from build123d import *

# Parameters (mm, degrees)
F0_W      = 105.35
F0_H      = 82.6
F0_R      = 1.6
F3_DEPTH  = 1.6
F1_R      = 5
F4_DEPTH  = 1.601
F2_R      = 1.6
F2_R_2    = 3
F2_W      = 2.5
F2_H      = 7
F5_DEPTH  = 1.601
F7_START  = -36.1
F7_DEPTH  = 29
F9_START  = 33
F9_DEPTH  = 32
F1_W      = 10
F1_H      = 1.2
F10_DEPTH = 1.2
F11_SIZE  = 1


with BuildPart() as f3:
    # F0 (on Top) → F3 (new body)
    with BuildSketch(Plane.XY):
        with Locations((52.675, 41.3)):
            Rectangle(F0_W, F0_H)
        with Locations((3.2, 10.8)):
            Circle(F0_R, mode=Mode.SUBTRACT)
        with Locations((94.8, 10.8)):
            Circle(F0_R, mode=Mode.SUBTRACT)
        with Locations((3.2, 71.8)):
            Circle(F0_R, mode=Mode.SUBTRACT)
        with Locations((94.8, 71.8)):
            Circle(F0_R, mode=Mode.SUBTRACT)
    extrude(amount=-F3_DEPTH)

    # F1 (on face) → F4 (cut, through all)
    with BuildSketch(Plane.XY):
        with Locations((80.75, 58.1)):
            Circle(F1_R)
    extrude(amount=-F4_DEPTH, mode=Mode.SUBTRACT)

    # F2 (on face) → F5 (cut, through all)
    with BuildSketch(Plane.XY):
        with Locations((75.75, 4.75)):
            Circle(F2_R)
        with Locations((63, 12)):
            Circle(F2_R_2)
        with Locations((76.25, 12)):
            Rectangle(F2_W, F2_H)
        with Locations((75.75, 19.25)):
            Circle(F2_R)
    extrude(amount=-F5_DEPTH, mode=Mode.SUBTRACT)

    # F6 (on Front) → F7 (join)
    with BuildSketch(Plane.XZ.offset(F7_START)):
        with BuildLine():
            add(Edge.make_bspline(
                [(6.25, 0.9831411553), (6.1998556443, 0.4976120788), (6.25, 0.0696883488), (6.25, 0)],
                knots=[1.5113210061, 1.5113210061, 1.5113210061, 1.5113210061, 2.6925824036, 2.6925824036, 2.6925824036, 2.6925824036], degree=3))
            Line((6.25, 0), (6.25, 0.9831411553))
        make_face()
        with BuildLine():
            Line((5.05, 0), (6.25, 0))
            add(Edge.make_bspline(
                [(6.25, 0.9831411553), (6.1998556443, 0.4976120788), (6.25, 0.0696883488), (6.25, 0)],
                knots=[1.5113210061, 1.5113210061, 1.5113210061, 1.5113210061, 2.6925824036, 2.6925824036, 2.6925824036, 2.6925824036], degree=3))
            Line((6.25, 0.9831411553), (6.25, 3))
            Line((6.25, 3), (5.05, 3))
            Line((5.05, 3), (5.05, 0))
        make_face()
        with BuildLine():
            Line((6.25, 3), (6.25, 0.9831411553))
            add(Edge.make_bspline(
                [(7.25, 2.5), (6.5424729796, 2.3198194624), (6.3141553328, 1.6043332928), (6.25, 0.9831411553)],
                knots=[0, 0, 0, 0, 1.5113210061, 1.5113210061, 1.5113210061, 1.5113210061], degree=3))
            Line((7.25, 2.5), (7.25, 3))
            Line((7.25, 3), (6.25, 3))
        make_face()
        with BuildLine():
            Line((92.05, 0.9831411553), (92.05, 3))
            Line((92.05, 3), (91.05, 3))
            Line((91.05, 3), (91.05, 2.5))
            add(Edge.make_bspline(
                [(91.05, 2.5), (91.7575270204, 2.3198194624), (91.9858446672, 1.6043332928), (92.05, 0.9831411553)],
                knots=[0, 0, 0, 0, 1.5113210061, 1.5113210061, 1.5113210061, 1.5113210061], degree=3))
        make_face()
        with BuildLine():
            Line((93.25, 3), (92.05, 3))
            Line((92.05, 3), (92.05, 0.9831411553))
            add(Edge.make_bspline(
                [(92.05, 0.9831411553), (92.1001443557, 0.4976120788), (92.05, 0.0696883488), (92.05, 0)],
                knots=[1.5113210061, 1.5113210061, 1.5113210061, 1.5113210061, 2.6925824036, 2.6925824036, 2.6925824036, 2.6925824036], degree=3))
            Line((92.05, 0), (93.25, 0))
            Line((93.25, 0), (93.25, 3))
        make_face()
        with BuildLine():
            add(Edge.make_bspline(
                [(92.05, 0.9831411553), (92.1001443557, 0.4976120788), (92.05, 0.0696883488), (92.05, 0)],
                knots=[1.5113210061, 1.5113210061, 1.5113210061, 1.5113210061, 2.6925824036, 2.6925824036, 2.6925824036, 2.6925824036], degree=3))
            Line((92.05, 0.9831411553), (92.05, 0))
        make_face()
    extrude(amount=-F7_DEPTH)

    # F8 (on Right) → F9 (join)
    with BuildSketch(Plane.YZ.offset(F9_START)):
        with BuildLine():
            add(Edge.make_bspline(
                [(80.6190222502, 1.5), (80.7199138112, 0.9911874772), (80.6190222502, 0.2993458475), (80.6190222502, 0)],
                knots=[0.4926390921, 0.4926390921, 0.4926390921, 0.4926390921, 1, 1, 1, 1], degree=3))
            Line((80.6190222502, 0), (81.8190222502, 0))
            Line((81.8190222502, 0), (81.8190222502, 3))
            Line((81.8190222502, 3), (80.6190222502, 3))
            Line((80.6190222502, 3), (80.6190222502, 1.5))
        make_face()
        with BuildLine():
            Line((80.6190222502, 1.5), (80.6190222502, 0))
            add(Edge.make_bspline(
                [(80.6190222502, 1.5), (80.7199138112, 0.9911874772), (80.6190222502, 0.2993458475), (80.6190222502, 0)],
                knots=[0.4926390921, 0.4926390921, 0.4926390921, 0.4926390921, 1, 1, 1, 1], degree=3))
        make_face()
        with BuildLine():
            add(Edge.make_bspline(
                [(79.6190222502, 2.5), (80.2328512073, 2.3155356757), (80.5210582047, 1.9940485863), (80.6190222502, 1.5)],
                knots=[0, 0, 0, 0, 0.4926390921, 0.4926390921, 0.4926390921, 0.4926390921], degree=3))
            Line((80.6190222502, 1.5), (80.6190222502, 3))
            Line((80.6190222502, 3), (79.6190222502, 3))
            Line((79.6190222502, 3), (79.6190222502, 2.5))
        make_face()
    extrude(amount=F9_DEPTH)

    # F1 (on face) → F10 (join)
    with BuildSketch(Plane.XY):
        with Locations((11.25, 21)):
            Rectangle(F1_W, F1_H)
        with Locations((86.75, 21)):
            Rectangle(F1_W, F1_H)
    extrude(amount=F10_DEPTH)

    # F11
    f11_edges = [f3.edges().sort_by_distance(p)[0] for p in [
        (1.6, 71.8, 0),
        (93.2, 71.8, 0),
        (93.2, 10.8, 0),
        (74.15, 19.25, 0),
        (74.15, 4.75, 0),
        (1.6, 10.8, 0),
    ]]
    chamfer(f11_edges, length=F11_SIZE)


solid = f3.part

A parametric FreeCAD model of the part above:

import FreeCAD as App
import Part
import Sketcher
from FreeCAD import Vector


def edges_at(feature, points):
    """Names of the edges that pass closest to the given points."""
    edges = feature.Shape.Edges
    near = lambda p: min(range(len(edges)), key=lambda i: edges[i].distToShape(Part.Vertex(*p))[0])
    return sorted({f"Edge{near(p) + 1}" for p in points})


def add_polygon(sketch, points):
    """Adds a closed chain of lines whose ends are joined by coincident constraints."""
    first, n = sketch.GeometryCount, len(points)
    for a, b in zip(points, points[1:] + points[:1]):
        sketch.addGeometry(Part.LineSegment(App.Vector(*a, 0), App.Vector(*b, 0)), False)
    for i in range(n):
        sketch.addConstraint(Sketcher.Constraint("Coincident", first + i, 2, first + (i + 1) % n, 1))

doc = App.newDocument("Part")
params = doc.addObject("Spreadsheet::Sheet", "Params")
for row, (alias, value) in enumerate([
    ("sketch1_diameter", "3.2 mm"),
    ("sketch1_height", "82.6 mm"),
    ("sketch1_width", "105.35 mm"),
    ("pad1_length", "1.6 mm"),
    ("sketch2_diameter", "10 mm"),
    ("sketch3_diameter", "6 mm"),
    ("sketch3_diameter2", "3.2 mm"),
    ("sketch3_height", "7 mm"),
    ("sketch3_width", "2.5 mm"),
    ("sketch4_height", "3 mm"),
    ("sketch4_width", "2.2 mm"),
    ("pad2_length", "29 mm"),
    ("sketch5_height", "3 mm"),
    ("sketch5_width", "1.2 mm"),
    ("pad3_length", "32 mm"),
    ("sketch6_width", "10 mm"),
    ("sketch6_height", "1.2 mm"),
    ("pad4_length", "1.2 mm"),
    ("chamfer_size", "1 mm"),
], start=1):
    params.set(f"A{row}", alias)
    params.set(f"B{row}", "=" + value)
    params.setAlias(f"B{row}", alias)

body = doc.addObject("PartDesign::Body", "Body")

sketch1 = body.newObject("Sketcher::SketchObject", "Sketch")
sketch1.AttachmentSupport = (doc.getObject("XY_Plane"), [""])
sketch1.MapMode = "FlatFace"
add_polygon(sketch1, [(0, 82.6), (0, 0), (105.3, 0), (105.3, 82.6)])
sketch1.addGeometry(Part.Circle(Vector(3.2, 10.8, 0), Vector(0, 0, 1), 1.6), False)
sketch1.addGeometry(Part.Circle(Vector(94.8, 10.8, 0), Vector(0, 0, 1), 1.6), False)
sketch1.addGeometry(Part.Circle(Vector(3.2, 71.8, 0), Vector(0, 0, 1), 1.6), False)
sketch1.addGeometry(Part.Circle(Vector(94.8, 71.8, 0), Vector(0, 0, 1), 1.6), False)
sketch1.addConstraint(Sketcher.Constraint("Vertical", 0))
sketch1.addConstraint(Sketcher.Constraint("Horizontal", 1))
sketch1.addConstraint(Sketcher.Constraint("Vertical", 2))
sketch1.addConstraint(Sketcher.Constraint("Horizontal", 3))
sketch1.addConstraint(Sketcher.Constraint("Coincident", 0, 2, -1, 1))
sketch1.addConstraint(Sketcher.Constraint("Equal", 4, 5))
sketch1.addConstraint(Sketcher.Constraint("Equal", 5, 6))
sketch1.addConstraint(Sketcher.Constraint("Equal", 6, 7))
sketch1.addConstraint(Sketcher.Constraint("Horizontal", 4, 3, 5, 3))
sketch1.addConstraint(Sketcher.Constraint("Horizontal", 6, 3, 7, 3))
sketch1.addConstraint(Sketcher.Constraint("Vertical", 4, 3, 6, 3))
sketch1.addConstraint(Sketcher.Constraint("Vertical", 5, 3, 7, 3))
sketch1.addConstraint(Sketcher.Constraint("Diameter", 4, 3.2))
sketch1.addConstraint(Sketcher.Constraint("DistanceY", 0, 2, 0, 1, 82.6))
sketch1.addConstraint(Sketcher.Constraint("DistanceY", 4, 3, 6, 3, 61.0))
sketch1.addConstraint(Sketcher.Constraint("DistanceX", 1, 1, 1, 2, 105.35))
sketch1.addConstraint(Sketcher.Constraint("DistanceX", -1, 1, 4, 3, 3.2))
sketch1.addConstraint(Sketcher.Constraint("DistanceY", -1, 1, 4, 3, 10.8))
sketch1.addConstraint(Sketcher.Constraint("DistanceX", -1, 1, 5, 3, 94.8))
sketch1.setExpression("Constraints[16]", "Params.sketch1_diameter")
sketch1.setExpression("Constraints[17]", "Params.sketch1_height")
sketch1.setExpression("Constraints[19]", "Params.sketch1_width")
pad1 = body.newObject("PartDesign::Pad", "Pad")
pad1.Profile = sketch1
pad1.setExpression("Length", "Params.pad1_length")
pad1.Reversed = True

sketch2 = body.newObject("Sketcher::SketchObject", "Sketch001")
sketch2.AttachmentSupport = (doc.getObject("XY_Plane"), [""])
sketch2.MapMode = "FlatFace"
sketch2.addGeometry(Part.Circle(Vector(81, 58, 0), Vector(0, 0, 1), 5), False)
sketch2.addConstraint(Sketcher.Constraint("Diameter", 0, 10.0))
sketch2.addConstraint(Sketcher.Constraint("DistanceY", -1, 1, 0, 3, 58.1))
sketch2.addConstraint(Sketcher.Constraint("DistanceX", -1, 1, 0, 3, 80.75))
sketch2.setExpression("Constraints[0]", "Params.sketch2_diameter")
pocket1 = body.newObject("PartDesign::Pocket", "Pocket")
pocket1.Profile = sketch2
pocket1.Type = "ThroughAll"

sketch3 = body.newObject("Sketcher::SketchObject", "Sketch002")
sketch3.AttachmentSupport = (doc.getObject("XY_Plane"), [""])
sketch3.MapMode = "FlatFace"
sketch3.addGeometry(Part.Circle(Vector(75.8, 4.8, 0), Vector(0, 0, 1), 1.6), False)
sketch3.addGeometry(Part.Circle(Vector(63, 12, 0), Vector(0, 0, 1), 3), False)
add_polygon(sketch3, [(75, 15.5), (75, 8.5), (77.5, 8.5), (77.5, 15.5)])
sketch3.addGeometry(Part.Circle(Vector(75.8, 19.2, 0), Vector(0, 0, 1), 1.6), False)
sketch3.addConstraint(Sketcher.Constraint("Vertical", 2))
sketch3.addConstraint(Sketcher.Constraint("Horizontal", 3))
sketch3.addConstraint(Sketcher.Constraint("Vertical", 4))
sketch3.addConstraint(Sketcher.Constraint("Horizontal", 5))
sketch3.addConstraint(Sketcher.Constraint("Equal", 0, 6))
sketch3.addConstraint(Sketcher.Constraint("Vertical", 0, 3, 6, 3))
sketch3.addConstraint(Sketcher.Constraint("Diameter", 1, 6.0))
sketch3.addConstraint(Sketcher.Constraint("Diameter", 0, 3.2))
sketch3.addConstraint(Sketcher.Constraint("DistanceY", 2, 2, 2, 1, 7.0))
sketch3.addConstraint(Sketcher.Constraint("DistanceX", 3, 1, 3, 2, 2.5))
sketch3.addConstraint(Sketcher.Constraint("DistanceX", -1, 1, 1, 3, 63.0))
sketch3.addConstraint(Sketcher.Constraint("DistanceY", -1, 1, 1, 3, 12.0))
sketch3.addConstraint(Sketcher.Constraint("DistanceX", -1, 1, 2, 2, 75.0))
sketch3.addConstraint(Sketcher.Constraint("DistanceY", -1, 1, 2, 2, 8.5))
sketch3.addConstraint(Sketcher.Constraint("DistanceY", 0, 3, 6, 3, 14.5))
sketch3.addConstraint(Sketcher.Constraint("DistanceX", -1, 1, 0, 3, 75.75))
sketch3.addConstraint(Sketcher.Constraint("DistanceY", -1, 1, 0, 3, 4.75))
sketch3.setExpression("Constraints[10]", "Params.sketch3_diameter")
sketch3.setExpression("Constraints[11]", "Params.sketch3_diameter2")
sketch3.setExpression("Constraints[12]", "Params.sketch3_height")
sketch3.setExpression("Constraints[13]", "Params.sketch3_width")
pocket2 = body.newObject("PartDesign::Pocket", "Pocket001")
pocket2.Profile = sketch3
pocket2.Type = "ThroughAll"

sketch4 = body.newObject("Sketcher::SketchObject", "Sketch003")
sketch4.AttachmentSupport = (doc.getObject("XZ_Plane"), [""])
sketch4.MapMode = "FlatFace"
sketch4.AttachmentOffset = App.Placement(Vector(0, 0, -36.1), App.Rotation())
sketch4.addGeometry(Part.LineSegment(Vector(6.25, 0, 0), Vector(6.25, 0.983141, 0)), False)
sketch4.addGeometry(Part.BSplineCurve([Vector(7.25, 2.5, 0), Vector(6.542473, 2.319819, 0), Vector(6.314155, 1.604333, 0), Vector(6.25, 0.983141, 0)], [4, 4], [0, 1.511321006], False, 3, [1, 1, 1, 1], False), False)
sketch4.addGeometry(Part.LineSegment(Vector(7.25, 2.5, 0), Vector(7.25, 3, 0)), False)
sketch4.addGeometry(Part.LineSegment(Vector(7.25, 3, 0), Vector(5.05, 3, 0)), False)
sketch4.addGeometry(Part.LineSegment(Vector(5.05, 3, 0), Vector(5.05, 0, 0)), False)
sketch4.addGeometry(Part.LineSegment(Vector(5.05, 0, 0), Vector(6.25, 0, 0)), False)
sketch4.addGeometry(Part.LineSegment(Vector(91.05, 3, 0), Vector(91.05, 2.5, 0)), False)
sketch4.addGeometry(Part.BSplineCurve([Vector(91.05, 2.5, 0), Vector(91.757527, 2.319819, 0), Vector(91.985845, 1.604333, 0), Vector(92.05, 0.983141, 0)], [4, 4], [0, 1.511321006], False, 3, [1, 1, 1, 1], False), False)
sketch4.addGeometry(Part.LineSegment(Vector(92.05, 0.983141, 0), Vector(92.05, 0, 0)), False)
sketch4.addGeometry(Part.LineSegment(Vector(92.05, 0, 0), Vector(93.25, 0, 0)), False)
sketch4.addGeometry(Part.LineSegment(Vector(93.25, 0, 0), Vector(93.25, 3, 0)), False)
sketch4.addGeometry(Part.LineSegment(Vector(93.25, 3, 0), Vector(91.05, 3, 0)), False)
sketch4.addConstraint(Sketcher.Constraint("Block", 1))
sketch4.addConstraint(Sketcher.Constraint("Block", 7))
sketch4.addConstraint(Sketcher.Constraint("Coincident", 0, 2, 1, 2))
sketch4.addConstraint(Sketcher.Constraint("Coincident", 1, 1, 2, 1))
sketch4.addConstraint(Sketcher.Constraint("Coincident", 2, 2, 3, 1))
sketch4.addConstraint(Sketcher.Constraint("Coincident", 3, 2, 4, 1))
sketch4.addConstraint(Sketcher.Constraint("Coincident", 4, 2, 5, 1))
sketch4.addConstraint(Sketcher.Constraint("Coincident", 5, 2, 0, 1))
sketch4.addConstraint(Sketcher.Constraint("Coincident", 6, 2, 7, 1))
sketch4.addConstraint(Sketcher.Constraint("Coincident", 7, 2, 8, 1))
sketch4.addConstraint(Sketcher.Constraint("Coincident", 8, 2, 9, 1))
sketch4.addConstraint(Sketcher.Constraint("Coincident", 9, 2, 10, 1))
sketch4.addConstraint(Sketcher.Constraint("Coincident", 10, 2, 11, 1))
sketch4.addConstraint(Sketcher.Constraint("Coincident", 11, 2, 6, 1))
sketch4.addConstraint(Sketcher.Constraint("Vertical", 0))
sketch4.addConstraint(Sketcher.Constraint("Vertical", 2))
sketch4.addConstraint(Sketcher.Constraint("Horizontal", 3))
sketch4.addConstraint(Sketcher.Constraint("Vertical", 4))
sketch4.addConstraint(Sketcher.Constraint("Horizontal", 5))
sketch4.addConstraint(Sketcher.Constraint("Vertical", 6))
sketch4.addConstraint(Sketcher.Constraint("Vertical", 8))
sketch4.addConstraint(Sketcher.Constraint("Horizontal", 9))
sketch4.addConstraint(Sketcher.Constraint("Vertical", 10))
sketch4.addConstraint(Sketcher.Constraint("Horizontal", 11))
sketch4.addConstraint(Sketcher.Constraint("PointOnObject", 4, 2, -1))
sketch4.addConstraint(Sketcher.Constraint("PointOnObject", 8, 2, -1))
sketch4.addConstraint(Sketcher.Constraint("Horizontal", 3, 2, 10, 2))
sketch4.addConstraint(Sketcher.Constraint("Equal", 5, 9))
sketch4.addConstraint(Sketcher.Constraint("DistanceY", 4, 2, 4, 1, 3.0))
sketch4.addConstraint(Sketcher.Constraint("DistanceX", 3, 2, 3, 1, 2.2))
sketch4.setExpression("Constraints[28]", "Params.sketch4_height")
sketch4.setExpression("Constraints[29]", "Params.sketch4_width")
pad2 = body.newObject("PartDesign::Pad", "Pad001")
pad2.Profile = sketch4
pad2.setExpression("Length", "Params.pad2_length")
pad2.Reversed = True

sketch5 = body.newObject("Sketcher::SketchObject", "Sketch004")
sketch5.AttachmentSupport = (doc.getObject("YZ_Plane"), [""])
sketch5.MapMode = "FlatFace"
sketch5.AttachmentOffset = App.Placement(Vector(0, 0, 33), App.Rotation())
sketch5.addGeometry(Part.LineSegment(Vector(80.619022, 0, 0), Vector(81.819022, 0, 0)), False)
sketch5.addGeometry(Part.LineSegment(Vector(81.819022, 0, 0), Vector(81.819022, 3, 0)), False)
sketch5.addGeometry(Part.LineSegment(Vector(81.819022, 3, 0), Vector(79.619022, 3, 0)), False)
sketch5.addGeometry(Part.LineSegment(Vector(79.619022, 3, 0), Vector(79.619022, 2.5, 0)), False)
sketch5.addGeometry(Part.BSplineCurve([Vector(79.619022, 2.5, 0), Vector(80.232851, 2.315536, 0), Vector(80.521058, 1.994049, 0), Vector(80.619022, 1.5, 0)], [4, 4], [0, 0.492639092], False, 3, [1, 1, 1, 1], False), False)
sketch5.addGeometry(Part.LineSegment(Vector(80.619022, 1.5, 0), Vector(80.619022, 0, 0)), False)
sketch5.addConstraint(Sketcher.Constraint("Block", 4))
sketch5.addConstraint(Sketcher.Constraint("Coincident", 0, 2, 1, 1))
sketch5.addConstraint(Sketcher.Constraint("Coincident", 1, 2, 2, 1))
sketch5.addConstraint(Sketcher.Constraint("Coincident", 2, 2, 3, 1))
sketch5.addConstraint(Sketcher.Constraint("Coincident", 3, 2, 4, 1))
sketch5.addConstraint(Sketcher.Constraint("Coincident", 4, 2, 5, 1))
sketch5.addConstraint(Sketcher.Constraint("Coincident", 5, 2, 0, 1))
sketch5.addConstraint(Sketcher.Constraint("Horizontal", 0))
sketch5.addConstraint(Sketcher.Constraint("Vertical", 1))
sketch5.addConstraint(Sketcher.Constraint("Horizontal", 2))
sketch5.addConstraint(Sketcher.Constraint("Vertical", 3))
sketch5.addConstraint(Sketcher.Constraint("Vertical", 5))
sketch5.addConstraint(Sketcher.Constraint("PointOnObject", 0, 2, -1))
sketch5.addConstraint(Sketcher.Constraint("DistanceY", 1, 1, 1, 2, 3.0))
sketch5.addConstraint(Sketcher.Constraint("DistanceX", 0, 1, 0, 2, 1.2))
sketch5.setExpression("Constraints[13]", "Params.sketch5_height")
sketch5.setExpression("Constraints[14]", "Params.sketch5_width")
pad3 = body.newObject("PartDesign::Pad", "Pad002")
pad3.Profile = sketch5
pad3.setExpression("Length", "Params.pad3_length")

sketch6 = body.newObject("Sketcher::SketchObject", "Sketch005")
sketch6.AttachmentSupport = (doc.getObject("XY_Plane"), [""])
sketch6.MapMode = "FlatFace"
add_polygon(sketch6, [(6.2, 21.6), (6.2, 20.4), (16.2, 20.4), (16.2, 21.6)])
add_polygon(sketch6, [(81.8, 21.6), (81.8, 20.4), (91.8, 20.4), (91.8, 21.6)])
sketch6.addConstraint(Sketcher.Constraint("Vertical", 0))
sketch6.addConstraint(Sketcher.Constraint("Horizontal", 1))
sketch6.addConstraint(Sketcher.Constraint("Vertical", 2))
sketch6.addConstraint(Sketcher.Constraint("Horizontal", 3))
sketch6.addConstraint(Sketcher.Constraint("Vertical", 4))
sketch6.addConstraint(Sketcher.Constraint("Horizontal", 5))
sketch6.addConstraint(Sketcher.Constraint("Vertical", 6))
sketch6.addConstraint(Sketcher.Constraint("Horizontal", 7))
sketch6.addConstraint(Sketcher.Constraint("Horizontal", 1, 2, 4, 2))
sketch6.addConstraint(Sketcher.Constraint("Horizontal", 3, 2, 6, 2))
sketch6.addConstraint(Sketcher.Constraint("Equal", 3, 5))
sketch6.addConstraint(Sketcher.Constraint("DistanceX", 1, 1, 1, 2, 10.0))
sketch6.addConstraint(Sketcher.Constraint("DistanceY", 0, 2, 0, 1, 1.2))
sketch6.addConstraint(Sketcher.Constraint("DistanceY", -1, 1, 0, 2, 20.4))
sketch6.addConstraint(Sketcher.Constraint("DistanceX", 1, 2, 4, 2, 65.5))
sketch6.addConstraint(Sketcher.Constraint("DistanceX", -1, 1, 0, 2, 6.25))
sketch6.setExpression("Constraints[19]", "Params.sketch6_width")
sketch6.setExpression("Constraints[20]", "Params.sketch6_height")
pad4 = body.newObject("PartDesign::Pad", "Pad003")
pad4.Profile = sketch6
pad4.setExpression("Length", "Params.pad4_length")
doc.recompute()

chamfer = body.newObject("PartDesign::Chamfer", "Chamfer")
chamfer.Base = (pad4, edges_at(pad4, [
    (1.6, 71.8, 0),
    (93.2, 71.8, 0),
    (93.2, 10.8, 0),
    (74.15, 19.25, 0),
    (74.15, 4.75, 0),
    (1.6, 10.8, 0),
]))
chamfer.setExpression("Size", "Params.chamfer_size")

doc.recompute()
